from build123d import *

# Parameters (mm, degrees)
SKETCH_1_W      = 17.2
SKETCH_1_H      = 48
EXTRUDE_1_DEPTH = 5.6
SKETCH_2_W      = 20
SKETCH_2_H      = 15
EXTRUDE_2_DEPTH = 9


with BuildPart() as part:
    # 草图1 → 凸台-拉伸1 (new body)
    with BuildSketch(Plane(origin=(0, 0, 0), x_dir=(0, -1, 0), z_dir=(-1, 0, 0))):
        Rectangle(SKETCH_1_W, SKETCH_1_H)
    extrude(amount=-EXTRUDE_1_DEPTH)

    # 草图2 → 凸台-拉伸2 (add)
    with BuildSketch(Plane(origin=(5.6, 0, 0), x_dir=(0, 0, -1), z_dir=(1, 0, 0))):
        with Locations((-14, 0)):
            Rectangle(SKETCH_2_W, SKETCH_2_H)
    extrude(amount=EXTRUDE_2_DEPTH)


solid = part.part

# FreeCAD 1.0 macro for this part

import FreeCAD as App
import Part
import Sketcher
from FreeCAD import Vector
Q = App.Units.Quantity


def add_polygon(sketch, points):
    """Adds a closed chain of lines whose ends are joined by coincident constraints."""
    first, n = sketch.GeometryCount, len(points)
    for a, b in zip(points, points[1:] + points[:1]):
        sketch.addGeometry(Part.LineSegment(App.Vector(*a, 0), App.Vector(*b, 0)), False)
    for i in range(n):
        sketch.addConstraint(Sketcher.Constraint("Coincident", first + i, 2, first + (i + 1) % n, 1))

doc = App.newDocument("Part")
body = doc.addObject("PartDesign::Body", "Body")

# Sketch on YZ plane
sketch1 = body.newObject("Sketcher::SketchObject", "Sketch")
sketch1.AttachmentSupport = (doc.getObject("YZ_Plane"), [""])
sketch1.MapMode = "FlatFace"
add_polygon(sketch1, [(9, 24), (9, -24), (-9, -24), (-9, 24)])  # lines 0-3
sketch1.addConstraint(Sketcher.Constraint("Vertical", 0))
sketch1.addConstraint(Sketcher.Constraint("Horizontal", 1))
sketch1.addConstraint(Sketcher.Constraint("Vertical", 2))
sketch1.addConstraint(Sketcher.Constraint("Horizontal", 3))
sketch1.addConstraint(Sketcher.Constraint("Symmetric", 0, 2, 2, 2, -1, 1))
sketch1.addConstraint(Sketcher.Constraint("DistanceY", 0, 2, 0, 1, Q("48 mm")))
sketch1.addConstraint(Sketcher.Constraint("DistanceX", 1, 2, 1, 1, Q("17.2 mm")))
pad1 = body.newObject("PartDesign::Pad", "Pad")
pad1.Profile = sketch1
pad1.Length = 5.6

# Sketch on YZ plane
sketch2 = body.newObject("Sketcher::SketchObject", "Sketch001")
sketch2.AttachmentSupport = (doc.getObject("YZ_Plane"), [""])
sketch2.MapMode = "FlatFace"
sketch2.AttachmentOffset = App.Placement(Vector(0, 0, 5.6), App.Rotation())
add_polygon(sketch2, [(8, 24), (-8, 24), (-8, 4), (8, 4)])  # lines 0-3
sketch2.addConstraint(Sketcher.Constraint("Horizontal", 0))
sketch2.addConstraint(Sketcher.Constraint("Vertical", 1))
sketch2.addConstraint(Sketcher.Constraint("Horizontal", 2))
sketch2.addConstraint(Sketcher.Constraint("Vertical", 3))
sketch2.addConstraint(Sketcher.Constraint("DistanceX", 0, 2, 0, 1, Q("15 mm")))
sketch2.addConstraint(Sketcher.Constraint("DistanceY", 1, 2, 1, 1, Q("20 mm")))
sketch2.addConstraint(Sketcher.Constraint("DistanceY", -1, 1, 0, 2, Q("24 mm")))
sketch2.addConstraint(Sketcher.Constraint("DistanceX", 0, 2, -1, 1, Q("7.5 mm")))
pad2 = body.newObject("PartDesign::Pad", "Pad001")
pad2.Profile = sketch2
pad2.Length = 9

doc.recompute()
